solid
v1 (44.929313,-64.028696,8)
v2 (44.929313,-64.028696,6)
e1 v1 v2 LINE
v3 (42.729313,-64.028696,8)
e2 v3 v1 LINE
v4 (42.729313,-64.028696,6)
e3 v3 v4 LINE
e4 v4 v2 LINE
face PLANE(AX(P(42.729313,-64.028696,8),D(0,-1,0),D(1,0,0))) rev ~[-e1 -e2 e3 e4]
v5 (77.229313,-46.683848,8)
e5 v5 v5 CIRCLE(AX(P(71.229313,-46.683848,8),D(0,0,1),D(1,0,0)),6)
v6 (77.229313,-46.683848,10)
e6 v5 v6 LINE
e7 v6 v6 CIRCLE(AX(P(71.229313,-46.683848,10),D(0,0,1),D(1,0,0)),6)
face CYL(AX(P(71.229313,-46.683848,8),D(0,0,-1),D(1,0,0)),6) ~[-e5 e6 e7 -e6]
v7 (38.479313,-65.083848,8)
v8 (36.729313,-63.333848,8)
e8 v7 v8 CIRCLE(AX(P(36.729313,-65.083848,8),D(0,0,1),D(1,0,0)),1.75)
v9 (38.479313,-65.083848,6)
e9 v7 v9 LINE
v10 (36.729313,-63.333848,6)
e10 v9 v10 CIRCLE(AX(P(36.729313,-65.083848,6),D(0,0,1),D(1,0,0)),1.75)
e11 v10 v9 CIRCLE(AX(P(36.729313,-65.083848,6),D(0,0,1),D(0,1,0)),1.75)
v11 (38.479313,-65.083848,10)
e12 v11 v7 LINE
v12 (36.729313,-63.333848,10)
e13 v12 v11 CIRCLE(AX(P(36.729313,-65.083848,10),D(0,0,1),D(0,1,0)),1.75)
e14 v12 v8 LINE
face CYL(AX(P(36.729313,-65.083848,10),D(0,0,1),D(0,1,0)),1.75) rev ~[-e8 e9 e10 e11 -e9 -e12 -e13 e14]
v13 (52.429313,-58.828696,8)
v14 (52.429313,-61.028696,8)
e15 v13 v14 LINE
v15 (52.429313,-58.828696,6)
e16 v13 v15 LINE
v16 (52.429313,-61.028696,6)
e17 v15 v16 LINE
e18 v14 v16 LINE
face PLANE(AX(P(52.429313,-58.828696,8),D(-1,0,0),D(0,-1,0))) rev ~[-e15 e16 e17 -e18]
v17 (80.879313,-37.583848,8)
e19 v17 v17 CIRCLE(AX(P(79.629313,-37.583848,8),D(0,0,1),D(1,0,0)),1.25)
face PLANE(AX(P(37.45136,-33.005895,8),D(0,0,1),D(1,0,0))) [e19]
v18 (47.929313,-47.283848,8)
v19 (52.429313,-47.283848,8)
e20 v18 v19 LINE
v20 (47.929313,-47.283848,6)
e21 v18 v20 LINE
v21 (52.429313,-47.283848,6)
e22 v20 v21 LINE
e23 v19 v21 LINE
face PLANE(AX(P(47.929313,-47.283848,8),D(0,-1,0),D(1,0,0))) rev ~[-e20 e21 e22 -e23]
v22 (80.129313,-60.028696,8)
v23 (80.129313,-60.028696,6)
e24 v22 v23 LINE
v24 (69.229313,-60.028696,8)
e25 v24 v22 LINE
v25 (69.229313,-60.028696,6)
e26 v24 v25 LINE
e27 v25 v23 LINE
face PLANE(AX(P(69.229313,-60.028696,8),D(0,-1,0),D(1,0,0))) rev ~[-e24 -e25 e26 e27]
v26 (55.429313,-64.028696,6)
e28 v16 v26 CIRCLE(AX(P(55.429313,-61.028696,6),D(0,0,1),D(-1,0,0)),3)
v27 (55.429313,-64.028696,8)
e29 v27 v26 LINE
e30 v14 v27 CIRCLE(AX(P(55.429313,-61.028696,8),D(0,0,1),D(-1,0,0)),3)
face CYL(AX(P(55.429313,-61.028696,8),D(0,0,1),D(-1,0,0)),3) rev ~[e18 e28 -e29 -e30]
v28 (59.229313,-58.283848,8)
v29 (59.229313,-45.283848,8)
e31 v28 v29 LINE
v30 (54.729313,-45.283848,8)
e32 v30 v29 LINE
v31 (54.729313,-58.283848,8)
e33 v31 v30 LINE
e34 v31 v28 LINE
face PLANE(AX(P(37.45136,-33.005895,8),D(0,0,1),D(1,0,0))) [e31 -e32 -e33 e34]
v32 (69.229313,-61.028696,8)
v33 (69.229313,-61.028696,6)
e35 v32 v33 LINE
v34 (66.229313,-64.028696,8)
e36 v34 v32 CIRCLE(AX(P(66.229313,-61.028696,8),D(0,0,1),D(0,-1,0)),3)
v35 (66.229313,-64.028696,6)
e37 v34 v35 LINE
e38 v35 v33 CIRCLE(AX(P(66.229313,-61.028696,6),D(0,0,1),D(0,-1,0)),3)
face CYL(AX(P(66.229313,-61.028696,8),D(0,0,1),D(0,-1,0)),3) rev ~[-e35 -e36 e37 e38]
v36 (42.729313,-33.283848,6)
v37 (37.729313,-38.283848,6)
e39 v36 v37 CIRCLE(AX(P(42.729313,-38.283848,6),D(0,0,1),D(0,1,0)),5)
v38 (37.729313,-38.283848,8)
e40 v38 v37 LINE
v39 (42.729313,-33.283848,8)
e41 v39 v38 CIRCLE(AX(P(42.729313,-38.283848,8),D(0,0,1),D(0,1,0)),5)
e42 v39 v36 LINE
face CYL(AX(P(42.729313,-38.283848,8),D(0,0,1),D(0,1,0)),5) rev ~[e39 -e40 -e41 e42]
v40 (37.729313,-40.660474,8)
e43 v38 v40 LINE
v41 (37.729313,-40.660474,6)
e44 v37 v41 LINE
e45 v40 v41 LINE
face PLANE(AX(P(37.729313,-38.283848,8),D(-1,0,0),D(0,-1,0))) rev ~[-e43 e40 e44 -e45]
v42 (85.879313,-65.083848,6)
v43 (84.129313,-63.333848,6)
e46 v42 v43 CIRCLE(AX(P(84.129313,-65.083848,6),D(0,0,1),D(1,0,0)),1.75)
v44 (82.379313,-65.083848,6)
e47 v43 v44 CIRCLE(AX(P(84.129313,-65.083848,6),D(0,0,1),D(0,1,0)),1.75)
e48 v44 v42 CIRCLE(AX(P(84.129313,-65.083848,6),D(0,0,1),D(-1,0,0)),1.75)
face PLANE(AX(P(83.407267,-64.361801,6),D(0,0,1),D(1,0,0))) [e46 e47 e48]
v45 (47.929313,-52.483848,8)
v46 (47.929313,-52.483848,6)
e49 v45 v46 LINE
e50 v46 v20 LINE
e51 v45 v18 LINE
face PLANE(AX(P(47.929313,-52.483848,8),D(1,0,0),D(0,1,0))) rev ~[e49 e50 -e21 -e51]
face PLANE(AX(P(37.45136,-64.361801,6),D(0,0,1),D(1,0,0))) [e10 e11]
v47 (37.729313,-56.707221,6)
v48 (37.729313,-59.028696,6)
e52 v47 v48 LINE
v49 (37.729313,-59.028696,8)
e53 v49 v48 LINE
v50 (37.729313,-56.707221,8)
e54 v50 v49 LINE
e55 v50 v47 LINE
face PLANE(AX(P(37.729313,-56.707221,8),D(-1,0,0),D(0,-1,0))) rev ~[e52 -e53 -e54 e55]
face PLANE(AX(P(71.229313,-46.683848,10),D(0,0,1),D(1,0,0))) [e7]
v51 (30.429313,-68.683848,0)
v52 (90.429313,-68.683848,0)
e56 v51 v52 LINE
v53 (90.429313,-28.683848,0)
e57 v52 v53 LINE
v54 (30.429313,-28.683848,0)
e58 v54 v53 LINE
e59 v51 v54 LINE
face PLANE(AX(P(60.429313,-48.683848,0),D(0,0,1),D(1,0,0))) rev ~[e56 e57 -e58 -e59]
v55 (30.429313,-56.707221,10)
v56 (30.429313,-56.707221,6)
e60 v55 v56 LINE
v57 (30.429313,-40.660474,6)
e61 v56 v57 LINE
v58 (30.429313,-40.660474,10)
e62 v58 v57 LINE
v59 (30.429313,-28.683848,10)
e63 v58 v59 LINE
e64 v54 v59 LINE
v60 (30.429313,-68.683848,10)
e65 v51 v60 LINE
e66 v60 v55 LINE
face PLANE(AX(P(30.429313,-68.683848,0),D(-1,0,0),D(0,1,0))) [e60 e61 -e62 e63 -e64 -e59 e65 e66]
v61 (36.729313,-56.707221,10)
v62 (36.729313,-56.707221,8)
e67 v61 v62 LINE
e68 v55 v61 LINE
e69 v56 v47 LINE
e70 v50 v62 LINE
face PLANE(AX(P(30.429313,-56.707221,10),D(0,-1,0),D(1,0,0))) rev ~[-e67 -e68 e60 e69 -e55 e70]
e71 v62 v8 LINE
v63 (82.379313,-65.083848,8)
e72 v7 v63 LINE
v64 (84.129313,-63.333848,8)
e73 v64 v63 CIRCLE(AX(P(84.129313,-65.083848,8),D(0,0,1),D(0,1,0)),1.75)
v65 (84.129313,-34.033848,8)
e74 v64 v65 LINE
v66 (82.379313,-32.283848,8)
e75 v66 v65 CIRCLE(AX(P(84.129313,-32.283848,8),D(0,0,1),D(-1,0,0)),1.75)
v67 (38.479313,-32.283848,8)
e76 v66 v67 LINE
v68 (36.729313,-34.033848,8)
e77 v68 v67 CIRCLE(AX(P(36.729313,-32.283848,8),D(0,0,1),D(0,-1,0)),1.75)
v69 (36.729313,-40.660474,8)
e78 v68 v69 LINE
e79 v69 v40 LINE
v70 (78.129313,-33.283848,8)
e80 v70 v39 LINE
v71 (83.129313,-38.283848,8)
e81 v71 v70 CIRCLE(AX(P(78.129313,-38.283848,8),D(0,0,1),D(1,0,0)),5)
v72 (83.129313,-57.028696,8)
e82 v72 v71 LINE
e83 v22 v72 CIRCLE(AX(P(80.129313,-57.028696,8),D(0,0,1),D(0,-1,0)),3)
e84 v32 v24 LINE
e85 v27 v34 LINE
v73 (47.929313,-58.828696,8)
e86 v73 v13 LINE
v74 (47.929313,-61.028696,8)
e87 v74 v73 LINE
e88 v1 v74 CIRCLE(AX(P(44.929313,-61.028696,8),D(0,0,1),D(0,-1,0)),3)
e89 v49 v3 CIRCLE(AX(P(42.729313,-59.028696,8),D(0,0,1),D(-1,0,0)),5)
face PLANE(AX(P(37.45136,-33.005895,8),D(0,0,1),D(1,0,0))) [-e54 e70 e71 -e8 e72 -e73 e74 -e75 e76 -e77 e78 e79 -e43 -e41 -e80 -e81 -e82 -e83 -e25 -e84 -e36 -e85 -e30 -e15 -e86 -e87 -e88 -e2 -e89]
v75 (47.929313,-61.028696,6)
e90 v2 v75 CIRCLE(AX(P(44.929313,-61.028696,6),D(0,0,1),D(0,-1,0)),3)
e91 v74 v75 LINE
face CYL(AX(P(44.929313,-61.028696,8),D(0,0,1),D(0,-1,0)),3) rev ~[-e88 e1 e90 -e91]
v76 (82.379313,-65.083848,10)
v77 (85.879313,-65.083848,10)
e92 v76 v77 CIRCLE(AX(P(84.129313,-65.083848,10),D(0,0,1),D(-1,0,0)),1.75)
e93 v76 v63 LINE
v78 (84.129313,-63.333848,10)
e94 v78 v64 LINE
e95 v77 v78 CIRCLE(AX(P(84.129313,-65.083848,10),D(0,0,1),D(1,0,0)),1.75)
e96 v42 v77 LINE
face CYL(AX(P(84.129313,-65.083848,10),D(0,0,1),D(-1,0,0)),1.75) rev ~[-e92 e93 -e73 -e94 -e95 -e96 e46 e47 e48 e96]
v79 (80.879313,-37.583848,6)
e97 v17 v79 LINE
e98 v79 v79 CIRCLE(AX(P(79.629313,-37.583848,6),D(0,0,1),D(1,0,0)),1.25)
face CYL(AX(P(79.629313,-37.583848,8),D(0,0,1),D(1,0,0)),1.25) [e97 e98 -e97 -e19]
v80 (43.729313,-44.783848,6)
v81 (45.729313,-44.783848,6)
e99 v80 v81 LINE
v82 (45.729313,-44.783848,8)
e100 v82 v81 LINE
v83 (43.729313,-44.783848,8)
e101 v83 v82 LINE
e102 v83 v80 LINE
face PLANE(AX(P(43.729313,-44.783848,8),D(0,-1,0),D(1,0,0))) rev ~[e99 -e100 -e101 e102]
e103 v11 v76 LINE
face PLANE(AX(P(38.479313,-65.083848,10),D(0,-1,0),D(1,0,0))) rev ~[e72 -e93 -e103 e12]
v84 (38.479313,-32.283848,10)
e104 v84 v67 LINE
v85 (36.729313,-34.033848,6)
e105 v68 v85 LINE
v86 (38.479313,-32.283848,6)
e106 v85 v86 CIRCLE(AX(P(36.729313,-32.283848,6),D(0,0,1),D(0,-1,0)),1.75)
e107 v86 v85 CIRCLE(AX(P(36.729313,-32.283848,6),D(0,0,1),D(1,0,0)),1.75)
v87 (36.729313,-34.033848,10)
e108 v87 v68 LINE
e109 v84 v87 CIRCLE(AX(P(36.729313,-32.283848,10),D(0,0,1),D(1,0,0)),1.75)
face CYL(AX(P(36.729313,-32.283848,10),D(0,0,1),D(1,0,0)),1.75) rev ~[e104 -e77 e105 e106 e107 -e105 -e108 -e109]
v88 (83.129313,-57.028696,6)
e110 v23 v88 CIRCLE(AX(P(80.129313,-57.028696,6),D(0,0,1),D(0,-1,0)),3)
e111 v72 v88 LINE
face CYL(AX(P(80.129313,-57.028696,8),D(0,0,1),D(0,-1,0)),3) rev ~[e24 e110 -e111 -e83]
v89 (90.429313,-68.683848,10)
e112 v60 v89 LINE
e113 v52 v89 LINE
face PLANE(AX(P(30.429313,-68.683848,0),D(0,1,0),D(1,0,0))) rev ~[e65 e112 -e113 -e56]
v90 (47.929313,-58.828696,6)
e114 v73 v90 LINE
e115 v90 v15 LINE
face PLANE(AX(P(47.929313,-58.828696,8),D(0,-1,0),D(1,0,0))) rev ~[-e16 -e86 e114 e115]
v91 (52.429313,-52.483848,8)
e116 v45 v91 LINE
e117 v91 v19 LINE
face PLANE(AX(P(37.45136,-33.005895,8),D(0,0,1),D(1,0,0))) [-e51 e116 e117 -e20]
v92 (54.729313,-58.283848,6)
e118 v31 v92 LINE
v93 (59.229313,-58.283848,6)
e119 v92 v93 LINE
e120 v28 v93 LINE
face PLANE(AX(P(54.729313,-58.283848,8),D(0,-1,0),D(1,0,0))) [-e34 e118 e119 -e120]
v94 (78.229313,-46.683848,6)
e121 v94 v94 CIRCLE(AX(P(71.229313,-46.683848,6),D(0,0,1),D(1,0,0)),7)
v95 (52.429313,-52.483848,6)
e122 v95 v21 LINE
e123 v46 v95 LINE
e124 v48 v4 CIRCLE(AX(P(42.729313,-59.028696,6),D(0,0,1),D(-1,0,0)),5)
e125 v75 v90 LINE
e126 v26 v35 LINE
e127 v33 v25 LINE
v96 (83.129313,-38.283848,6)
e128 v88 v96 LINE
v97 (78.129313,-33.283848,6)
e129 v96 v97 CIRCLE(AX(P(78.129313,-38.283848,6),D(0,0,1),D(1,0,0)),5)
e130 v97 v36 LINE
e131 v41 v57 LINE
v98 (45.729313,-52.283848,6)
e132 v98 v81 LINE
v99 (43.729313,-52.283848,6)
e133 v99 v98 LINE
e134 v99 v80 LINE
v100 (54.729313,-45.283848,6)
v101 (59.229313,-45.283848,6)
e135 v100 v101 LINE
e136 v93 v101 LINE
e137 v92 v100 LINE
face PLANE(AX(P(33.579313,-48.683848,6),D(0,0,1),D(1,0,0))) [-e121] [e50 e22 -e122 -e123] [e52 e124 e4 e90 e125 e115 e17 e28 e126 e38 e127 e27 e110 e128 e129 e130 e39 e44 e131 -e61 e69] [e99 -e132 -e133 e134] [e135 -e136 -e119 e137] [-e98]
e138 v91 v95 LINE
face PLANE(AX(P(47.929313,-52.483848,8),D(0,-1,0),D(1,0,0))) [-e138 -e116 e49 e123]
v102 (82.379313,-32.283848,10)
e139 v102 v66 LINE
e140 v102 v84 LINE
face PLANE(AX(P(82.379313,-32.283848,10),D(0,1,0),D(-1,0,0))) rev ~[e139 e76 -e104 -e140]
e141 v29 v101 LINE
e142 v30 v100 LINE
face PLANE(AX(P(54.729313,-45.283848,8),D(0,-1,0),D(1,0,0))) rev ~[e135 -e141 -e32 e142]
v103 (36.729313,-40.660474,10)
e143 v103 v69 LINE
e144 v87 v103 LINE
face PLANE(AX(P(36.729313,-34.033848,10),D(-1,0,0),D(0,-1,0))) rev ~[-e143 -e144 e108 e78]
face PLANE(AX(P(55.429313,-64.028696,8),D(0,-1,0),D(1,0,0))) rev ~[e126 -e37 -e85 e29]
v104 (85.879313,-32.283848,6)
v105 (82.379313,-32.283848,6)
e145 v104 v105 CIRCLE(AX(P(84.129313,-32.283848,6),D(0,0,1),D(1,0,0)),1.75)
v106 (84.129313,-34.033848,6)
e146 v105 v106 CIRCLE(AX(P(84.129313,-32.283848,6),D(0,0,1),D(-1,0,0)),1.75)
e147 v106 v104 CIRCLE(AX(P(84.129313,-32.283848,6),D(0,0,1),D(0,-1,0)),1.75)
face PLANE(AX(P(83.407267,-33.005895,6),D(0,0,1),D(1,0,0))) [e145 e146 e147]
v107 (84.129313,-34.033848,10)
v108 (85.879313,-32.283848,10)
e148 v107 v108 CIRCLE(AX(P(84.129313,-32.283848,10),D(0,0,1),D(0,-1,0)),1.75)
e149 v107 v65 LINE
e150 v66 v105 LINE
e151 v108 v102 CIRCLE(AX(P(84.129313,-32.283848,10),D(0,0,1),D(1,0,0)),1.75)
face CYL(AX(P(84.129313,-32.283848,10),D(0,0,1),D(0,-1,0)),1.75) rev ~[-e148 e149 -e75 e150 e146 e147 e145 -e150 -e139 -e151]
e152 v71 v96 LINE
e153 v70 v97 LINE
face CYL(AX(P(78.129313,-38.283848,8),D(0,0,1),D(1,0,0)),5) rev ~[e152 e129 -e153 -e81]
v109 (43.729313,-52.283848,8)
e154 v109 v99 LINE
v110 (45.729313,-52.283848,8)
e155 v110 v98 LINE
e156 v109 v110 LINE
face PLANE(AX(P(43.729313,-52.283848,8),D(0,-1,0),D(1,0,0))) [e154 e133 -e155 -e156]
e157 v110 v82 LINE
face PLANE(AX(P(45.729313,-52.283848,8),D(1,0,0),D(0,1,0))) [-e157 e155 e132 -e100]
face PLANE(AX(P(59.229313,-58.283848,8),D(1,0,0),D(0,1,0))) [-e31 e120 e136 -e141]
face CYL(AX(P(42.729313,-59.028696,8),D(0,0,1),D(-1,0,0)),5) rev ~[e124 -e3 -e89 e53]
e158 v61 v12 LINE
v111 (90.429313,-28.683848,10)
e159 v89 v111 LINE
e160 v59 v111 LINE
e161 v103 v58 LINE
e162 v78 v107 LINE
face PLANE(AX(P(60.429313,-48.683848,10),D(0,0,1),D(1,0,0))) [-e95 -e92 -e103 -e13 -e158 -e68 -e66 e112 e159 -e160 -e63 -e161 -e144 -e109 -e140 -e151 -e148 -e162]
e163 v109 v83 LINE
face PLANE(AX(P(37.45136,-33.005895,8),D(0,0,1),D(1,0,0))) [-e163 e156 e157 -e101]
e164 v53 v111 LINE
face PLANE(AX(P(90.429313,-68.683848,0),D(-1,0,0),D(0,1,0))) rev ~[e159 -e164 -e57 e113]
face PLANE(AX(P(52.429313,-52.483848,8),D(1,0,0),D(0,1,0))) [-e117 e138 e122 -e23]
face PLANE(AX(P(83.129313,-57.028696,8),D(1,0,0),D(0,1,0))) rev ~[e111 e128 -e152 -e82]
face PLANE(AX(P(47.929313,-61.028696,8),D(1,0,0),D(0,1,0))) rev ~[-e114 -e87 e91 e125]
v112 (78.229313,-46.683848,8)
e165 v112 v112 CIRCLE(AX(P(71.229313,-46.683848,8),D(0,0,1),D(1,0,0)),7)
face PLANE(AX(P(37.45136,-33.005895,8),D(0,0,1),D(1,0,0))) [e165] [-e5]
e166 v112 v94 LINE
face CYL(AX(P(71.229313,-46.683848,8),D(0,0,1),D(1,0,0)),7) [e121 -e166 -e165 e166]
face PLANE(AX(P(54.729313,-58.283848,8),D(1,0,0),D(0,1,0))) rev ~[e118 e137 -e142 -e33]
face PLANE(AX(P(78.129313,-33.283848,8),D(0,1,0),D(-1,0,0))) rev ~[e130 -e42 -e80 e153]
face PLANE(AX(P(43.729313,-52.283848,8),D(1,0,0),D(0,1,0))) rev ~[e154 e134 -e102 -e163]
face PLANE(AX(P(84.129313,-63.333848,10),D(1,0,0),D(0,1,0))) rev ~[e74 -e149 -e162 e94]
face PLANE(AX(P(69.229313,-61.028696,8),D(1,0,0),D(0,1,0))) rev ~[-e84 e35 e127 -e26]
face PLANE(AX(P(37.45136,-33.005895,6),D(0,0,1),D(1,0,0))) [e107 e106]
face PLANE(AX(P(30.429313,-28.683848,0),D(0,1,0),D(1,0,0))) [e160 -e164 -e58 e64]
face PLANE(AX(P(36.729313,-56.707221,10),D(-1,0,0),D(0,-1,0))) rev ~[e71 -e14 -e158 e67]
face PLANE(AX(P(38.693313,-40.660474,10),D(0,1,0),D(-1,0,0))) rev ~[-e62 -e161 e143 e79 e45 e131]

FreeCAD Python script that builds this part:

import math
import FreeCAD as App
import Part
import Sketcher

V = App.Vector

doc = App.newDocument("Part")
params = doc.addObject("Spreadsheet::Sheet", "Params")
for row, (alias, value) in enumerate([
    ("sketch1_width", "60 mm"),
    ("sketch1_height", "40 mm"),
    ("pad1_length", "10 mm"),
    ("sketch2_radius", "1.75 mm"),
    ("sketch2_width", "43.9 mm"),
    ("sketch2_height", "29.3 mm"),
    ("pocket1_length", "2 mm"),
    ("sketch3_radius", "1.75 mm"),
    ("pocket2_length", "4 mm"),
    ("sketch4_diameter", "12 mm"),
    ("pad2_length", "2 mm"),
    ("pocket3_length", "4 mm"),
    ("sketch6_diameter", "14 mm"),
    ("sketch6_radius", "5 mm"),
    ("sketch6_radius2", "3 mm"),
    ("sketch6_diameter2", "2.5 mm"),
    ("sketch6_width", "2 mm"),
    ("pocket4_length", "2 mm"),
], start=1):
    params.set(f"A{row}", alias)
    params.set(f"B{row}", "=" + value)
    params.setAlias(f"B{row}", alias)

body = doc.addObject("PartDesign::Body", "Body")

sketch1 = body.newObject("Sketcher::SketchObject", "Sketch")
sketch1.AttachmentSupport = (doc.getObject("XY_Plane"), [""])
sketch1.MapMode = "FlatFace"
sketch1.addGeometry(Part.LineSegment(V(30.429313, -28.683848, 0), V(30.429313, -68.683848, 0)), False)
sketch1.addGeometry(Part.LineSegment(V(30.429313, -68.683848, 0), V(90.429313, -68.683848, 0)), False)
sketch1.addGeometry(Part.LineSegment(V(90.429313, -68.683848, 0), V(90.429313, -28.683848, 0)), False)
sketch1.addGeometry(Part.LineSegment(V(90.429313, -28.683848, 0), V(30.429313, -28.683848, 0)), False)
sketch1.addConstraint(Sketcher.Constraint("Coincident", 0, 2, 1, 1))
sketch1.addConstraint(Sketcher.Constraint("Coincident", 1, 2, 2, 1))
sketch1.addConstraint(Sketcher.Constraint("Coincident", 2, 2, 3, 1))
sketch1.addConstraint(Sketcher.Constraint("Coincident", 3, 2, 0, 1))
sketch1.addConstraint(Sketcher.Constraint("Vertical", 0))
sketch1.addConstraint(Sketcher.Constraint("Horizontal", 1))
sketch1.addConstraint(Sketcher.Constraint("Vertical", 2))
sketch1.addConstraint(Sketcher.Constraint("Horizontal", 3))
sketch1.addConstraint(Sketcher.Constraint("DistanceX", 1, 1, 1, 2, 60.0))
sketch1.addConstraint(Sketcher.Constraint("DistanceY", 0, 2, 0, 1, 40.0))
sketch1.addConstraint(Sketcher.Constraint("DistanceX", -1, 1, 0, 2, 30.429313))
sketch1.addConstraint(Sketcher.Constraint("DistanceY", 0, 2, -1, 1, 68.683848))
sketch1.setExpression("Constraints[8]", "Params.sketch1_width")
sketch1.setExpression("Constraints[9]", "Params.sketch1_height")
pad1 = body.newObject("PartDesign::Pad", "Pad")
pad1.Profile = sketch1
pad1.setExpression("Length", "Params.pad1_length")

sketch2 = body.newObject("Sketcher::SketchObject", "Sketch001")
sketch2.AttachmentSupport = (doc.getObject("XY_Plane"), [""])
sketch2.MapMode = "FlatFace"
sketch2.AttachmentOffset = App.Placement(V(0, 0, 10), App.Rotation())
sketch2.addGeometry(Part.ArcOfCircle(Part.Circle(V(36.729313, -32.283848, 0), V(0, 0, 1), 1.75), math.radians(0), math.radians(270)), False)
sketch2.addGeometry(Part.LineSegment(V(36.729313, -34.033848, 0), V(36.729313, -40.660474, 0)), False)
sketch2.addGeometry(Part.LineSegment(V(36.729313, -40.660474, 0), V(38.693313, -40.660474, 0)), False)
sketch2.addGeometry(Part.LineSegment(V(38.693313, -40.660474, 0), V(38.693313, -56.707221, 0)), False)
sketch2.addGeometry(Part.LineSegment(V(38.693313, -56.707221, 0), V(36.729313, -56.707221, 0)), False)
sketch2.addGeometry(Part.LineSegment(V(36.729313, -56.707221, 0), V(36.729313, -63.333848, 0)), False)
sketch2.addGeometry(Part.ArcOfCircle(Part.Circle(V(36.729313, -65.083848, 0), V(0, 0, 1), 1.75), math.radians(90), math.radians(360)), False)
sketch2.addGeometry(Part.LineSegment(V(38.479313, -65.083848, 0), V(82.379313, -65.083848, 0)), False)
sketch2.addGeometry(Part.ArcOfCircle(Part.Circle(V(84.129313, -65.083848, 0), V(0, 0, 1), 1.75), math.radians(180), math.radians(360)), False)
sketch2.addGeometry(Part.ArcOfCircle(Part.Circle(V(84.129313, -65.083848, 0), V(0, 0, 1), 1.75), math.radians(0), math.radians(90)), False)
sketch2.addGeometry(Part.LineSegment(V(84.129313, -63.333848, 0), V(84.129313, -34.033848, 0)), False)
sketch2.addGeometry(Part.ArcOfCircle(Part.Circle(V(84.129313, -32.283848, 0), V(0, 0, 1), 1.75), math.radians(-90), math.radians(0)), False)
sketch2.addGeometry(Part.ArcOfCircle(Part.Circle(V(84.129313, -32.283848, 0), V(0, 0, 1), 1.75), math.radians(0), math.radians(180)), False)
sketch2.addGeometry(Part.LineSegment(V(82.379313, -32.283848, 0), V(38.479313, -32.283848, 0)), False)
sketch2.addConstraint(Sketcher.Constraint("Coincident", 0, 2, 1, 1))
sketch2.addConstraint(Sketcher.Constraint("Coincident", 1, 2, 2, 1))
sketch2.addConstraint(Sketcher.Constraint("Coincident", 2, 2, 3, 1))
sketch2.addConstraint(Sketcher.Constraint("Coincident", 3, 2, 4, 1))
sketch2.addConstraint(Sketcher.Constraint("Coincident", 4, 2, 5, 1))
sketch2.addConstraint(Sketcher.Constraint("Coincident", 5, 2, 6, 1))
sketch2.addConstraint(Sketcher.Constraint("Coincident", 6, 2, 7, 1))
sketch2.addConstraint(Sketcher.Constraint("Coincident", 7, 2, 8, 1))
sketch2.addConstraint(Sketcher.Constraint("Tangent", 8, 2, 9, 1))
sketch2.addConstraint(Sketcher.Constraint("Coincident", 9, 2, 10, 1))
sketch2.addConstraint(Sketcher.Constraint("Coincident", 10, 2, 11, 1))
sketch2.addConstraint(Sketcher.Constraint("Tangent", 11, 2, 12, 1))
sketch2.addConstraint(Sketcher.Constraint("Coincident", 12, 2, 13, 1))
sketch2.addConstraint(Sketcher.Constraint("Coincident", 13, 2, 0, 1))
sketch2.addConstraint(Sketcher.Constraint("Vertical", 1))
sketch2.addConstraint(Sketcher.Constraint("Horizontal", 2))
sketch2.addConstraint(Sketcher.Constraint("Vertical", 3))
sketch2.addConstraint(Sketcher.Constraint("Horizontal", 4))
sketch2.addConstraint(Sketcher.Constraint("Vertical", 5))
sketch2.addConstraint(Sketcher.Constraint("Horizontal", 7))
sketch2.addConstraint(Sketcher.Constraint("Vertical", 10))
sketch2.addConstraint(Sketcher.Constraint("Horizontal", 13))
sketch2.addConstraint(Sketcher.Constraint("Equal", 0, 6))
sketch2.addConstraint(Sketcher.Constraint("Equal", 6, 8))
sketch2.addConstraint(Sketcher.Constraint("Equal", 8, 9))
sketch2.addConstraint(Sketcher.Constraint("Equal", 9, 11))
sketch2.addConstraint(Sketcher.Constraint("Equal", 11, 12))
sketch2.addConstraint(Sketcher.Constraint("Horizontal", 6, 3, 8, 3))
sketch2.addConstraint(Sketcher.Constraint("Horizontal", 0, 3, 11, 3))
sketch2.addConstraint(Sketcher.Constraint("Horizontal", 9, 3, 6, 2))
sketch2.addConstraint(Sketcher.Constraint("Horizontal", 7, 2, 8, 2))
sketch2.addConstraint(Sketcher.Constraint("Horizontal", 12, 3, 11, 2))
sketch2.addConstraint(Sketcher.Constraint("Horizontal", 11, 2, 12, 2))
sketch2.addConstraint(Sketcher.Constraint("Vertical", 0, 3, 6, 3))
sketch2.addConstraint(Sketcher.Constraint("Vertical", 9, 3, 11, 3))
sketch2.addConstraint(Sketcher.Constraint("Vertical", 6, 3, 0, 2))
sketch2.addConstraint(Sketcher.Constraint("Vertical", 1, 2, 4, 2))
sketch2.addConstraint(Sketcher.Constraint("Vertical", 12, 3, 9, 2))
sketch2.addConstraint(Sketcher.Constraint("Equal", 1, 5))
sketch2.addConstraint(Sketcher.Constraint("Radius", 0, 1.75))
sketch2.addConstraint(Sketcher.Constraint("DistanceX", 7, 1, 7, 2, 43.9))
sketch2.addConstraint(Sketcher.Constraint("DistanceY", 10, 1, 10, 2, 29.3))
sketch2.addConstraint(Sketcher.Constraint("DistanceX", 2, 1, 2, 2, 1.963999))
sketch2.addConstraint(Sketcher.Constraint("DistanceY", 1, 2, 1, 1, 6.626627))
sketch2.addConstraint(Sketcher.Constraint("DistanceY", 3, 2, -1, 1, 56.707221))
sketch2.addConstraint(Sketcher.Constraint("DistanceX", -1, 1, 0, 3, 36.729313))
sketch2.setExpression("Constraints[39]", "Params.sketch2_radius")
sketch2.setExpression("Constraints[40]", "Params.sketch2_width")
sketch2.setExpression("Constraints[41]", "Params.sketch2_height")
pocket1 = body.newObject("PartDesign::Pocket", "Pocket")
pocket1.Profile = sketch2
pocket1.setExpression("Length", "Params.pocket1_length")

sketch3 = body.newObject("Sketcher::SketchObject", "Sketch002")
sketch3.AttachmentSupport = (doc.getObject("XY_Plane"), [""])
sketch3.MapMode = "FlatFace"
sketch3.AttachmentOffset = App.Placement(V(0, 0, 10), App.Rotation())
sketch3.addGeometry(Part.ArcOfCircle(Part.Circle(V(36.729313, -32.283848, 0), V(0, 0, 1), 1.75), math.radians(-90), math.radians(0)), False)
sketch3.addGeometry(Part.ArcOfCircle(Part.Circle(V(36.729313, -32.283848, 0), V(0, 0, 1), 1.75), math.radians(0), math.radians(270)), False)
sketch3.addGeometry(Part.ArcOfCircle(Part.Circle(V(36.729313, -65.083848, 0), V(0, 0, 1), 1.75), math.radians(0), math.radians(90)), False)
sketch3.addGeometry(Part.ArcOfCircle(Part.Circle(V(36.729313, -65.083848, 0), V(0, 0, 1), 1.75), math.radians(90), math.radians(360)), False)
sketch3.addGeometry(Part.ArcOfCircle(Part.Circle(V(84.129313, -32.283848, 0), V(0, 0, 1), 1.75), math.radians(180), math.radians(270)), False)
sketch3.addGeometry(Part.ArcOfCircle(Part.Circle(V(84.129313, -32.283848, 0), V(0, 0, 1), 1.75), math.radians(-90), math.radians(0)), False)
sketch3.addGeometry(Part.ArcOfCircle(Part.Circle(V(84.129313, -32.283848, 0), V(0, 0, 1), 1.75), math.radians(0), math.radians(180)), False)
sketch3.addGeometry(Part.ArcOfCircle(Part.Circle(V(84.129313, -65.083848, 0), V(0, 0, 1), 1.75), math.radians(90), math.radians(180)), False)
sketch3.addGeometry(Part.ArcOfCircle(Part.Circle(V(84.129313, -65.083848, 0), V(0, 0, 1), 1.75), math.radians(180), math.radians(360)), False)
sketch3.addGeometry(Part.ArcOfCircle(Part.Circle(V(84.129313, -65.083848, 0), V(0, 0, 1), 1.75), math.radians(0), math.radians(90)), False)
sketch3.addConstraint(Sketcher.Constraint("Tangent", 0, 1, 1, 2))
sketch3.addConstraint(Sketcher.Constraint("Coincident", 1, 1, 0, 2))
sketch3.addConstraint(Sketcher.Constraint("Tangent", 2, 1, 3, 2))
sketch3.addConstraint(Sketcher.Constraint("Coincident", 3, 1, 2, 2))
sketch3.addConstraint(Sketcher.Constraint("Tangent", 4, 2, 5, 1))
sketch3.addConstraint(Sketcher.Constraint("Tangent", 5, 2, 6, 1))
sketch3.addConstraint(Sketcher.Constraint("Tangent", 6, 2, 4, 1))
sketch3.addConstraint(Sketcher.Constraint("Tangent", 7, 2, 8, 1))
sketch3.addConstraint(Sketcher.Constraint("Tangent", 8, 2, 9, 1))
sketch3.addConstraint(Sketcher.Constraint("Tangent", 9, 2, 7, 1))
sketch3.addConstraint(Sketcher.Constraint("Equal", 1, 2))
sketch3.addConstraint(Sketcher.Constraint("Equal", 3, 4))
sketch3.addConstraint(Sketcher.Constraint("Equal", 6, 7))
sketch3.addConstraint(Sketcher.Constraint("Horizontal", 1, 3, 4, 3))
sketch3.addConstraint(Sketcher.Constraint("Horizontal", 3, 3, 7, 3))
sketch3.addConstraint(Sketcher.Constraint("Horizontal", 6, 3, 1, 1))
sketch3.addConstraint(Sketcher.Constraint("Horizontal", 9, 3, 2, 1))
sketch3.addConstraint(Sketcher.Constraint("Horizontal", 1, 1, 5, 2))
sketch3.addConstraint(Sketcher.Constraint("Horizontal", 5, 2, 6, 2))
sketch3.addConstraint(Sketcher.Constraint("Horizontal", 2, 1, 7, 2))
sketch3.addConstraint(Sketcher.Constraint("Horizontal", 7, 2, 8, 2))
sketch3.addConstraint(Sketcher.Constraint("Vertical", 1, 3, 2, 3))
sketch3.addConstraint(Sketcher.Constraint("Vertical", 6, 3, 7, 3))
sketch3.addConstraint(Sketcher.Constraint("Vertical", 3, 3, 0, 1))
sketch3.addConstraint(Sketcher.Constraint("Vertical", 0, 1, 3, 1))
sketch3.addConstraint(Sketcher.Constraint("Vertical", 9, 3, 4, 2))
sketch3.addConstraint(Sketcher.Constraint("Vertical", 4, 2, 9, 2))
sketch3.addConstraint(Sketcher.Constraint("Radius", 0, 1.75))
sketch3.addConstraint(Sketcher.Constraint("DistanceY", 2, 3, 0, 3, 32.8))
sketch3.addConstraint(Sketcher.Constraint("DistanceX", 0, 3, 4, 3, 47.4))
sketch3.addConstraint(Sketcher.Constraint("DistanceX", -1, 1, 0, 3, 36.729313))
sketch3.addConstraint(Sketcher.Constraint("DistanceY", 0, 3, -1, 1, 32.283848))
sketch3.setExpression("Constraints[27]", "Params.sketch3_radius")
pocket2 = body.newObject("PartDesign::Pocket", "Pocket001")
pocket2.Profile = sketch3
pocket2.setExpression("Length", "Params.pocket2_length")

sketch4 = body.newObject("Sketcher::SketchObject", "Sketch003")
sketch4.AttachmentSupport = (doc.getObject("XY_Plane"), [""])
sketch4.MapMode = "FlatFace"
sketch4.AttachmentOffset = App.Placement(V(0, 0, 8), App.Rotation())
sketch4.addGeometry(Part.Circle(V(71.229313, -46.683848, 0), V(0, 0, 1), 6), False)
sketch4.addConstraint(Sketcher.Constraint("Diameter", 0, 12.0))
sketch4.addConstraint(Sketcher.Constraint("DistanceX", -1, 1, 0, 3, 71.229313))
sketch4.addConstraint(Sketcher.Constraint("DistanceY", 0, 3, -1, 1, 46.683848))
sketch4.setExpression("Constraints[0]", "Params.sketch4_diameter")
pad2 = body.newObject("PartDesign::Pad", "Pad001")
pad2.Profile = sketch4
pad2.setExpression("Length", "Params.pad2_length")

sketch5 = body.newObject("Sketcher::SketchObject", "Sketch004")
sketch5.AttachmentSupport = (doc.getObject("XY_Plane"), [""])
sketch5.MapMode = "FlatFace"
sketch5.AttachmentOffset = App.Placement(V(0, 0, 10), App.Rotation())
sketch5.addGeometry(Part.LineSegment(V(30.429313, -40.660474, 0), V(30.429313, -56.707221, 0)), False)
sketch5.addGeometry(Part.LineSegment(V(30.429313, -56.707221, 0), V(38.693313, -56.707221, 0)), False)
sketch5.addGeometry(Part.LineSegment(V(38.693313, -56.707221, 0), V(38.693313, -40.660474, 0)), False)
sketch5.addGeometry(Part.LineSegment(V(38.693313, -40.660474, 0), V(30.429313, -40.660474, 0)), False)
sketch5.addConstraint(Sketcher.Constraint("Coincident", 0, 2, 1, 1))
sketch5.addConstraint(Sketcher.Constraint("Coincident", 1, 2, 2, 1))
sketch5.addConstraint(Sketcher.Constraint("Coincident", 2, 2, 3, 1))
sketch5.addConstraint(Sketcher.Constraint("Coincident", 3, 2, 0, 1))
sketch5.addConstraint(Sketcher.Constraint("Vertical", 0))
sketch5.addConstraint(Sketcher.Constraint("Horizontal", 1))
sketch5.addConstraint(Sketcher.Constraint("Vertical", 2))
sketch5.addConstraint(Sketcher.Constraint("Horizontal", 3))
sketch5.addConstraint(Sketcher.Constraint("DistanceX", 1, 1, 1, 2, 8.263999))
sketch5.addConstraint(Sketcher.Constraint("DistanceY", 0, 2, 0, 1, 16.046747))
sketch5.addConstraint(Sketcher.Constraint("DistanceY", 0, 2, -1, 1, 56.707221))
sketch5.addConstraint(Sketcher.Constraint("DistanceX", -1, 1, 0, 2, 30.429313))
pocket3 = body.newObject("PartDesign::Pocket", "Pocket002")
pocket3.Profile = sketch5
pocket3.setExpression("Length", "Params.pocket3_length")

sketch6 = body.newObject("Sketcher::SketchObject", "Sketch005")
sketch6.AttachmentSupport = (doc.getObject("XY_Plane"), [""])
sketch6.MapMode = "FlatFace"
sketch6.AttachmentOffset = App.Placement(V(0, 0, 8), App.Rotation())
sketch6.addGeometry(Part.LineSegment(V(78.129313, -33.283848, 0), V(42.729313, -33.283848, 0)), False)
sketch6.addGeometry(Part.ArcOfCircle(Part.Circle(V(42.729313, -38.283848, 0), V(0, 0, 1), 5), math.radians(90), math.radians(180)), False)
sketch6.addGeometry(Part.LineSegment(V(37.729313, -38.283848, 0), V(37.729313, -40.660474, 0)), False)
sketch6.addGeometry(Part.LineSegment(V(37.729313, -40.660474, 0), V(38.693313, -40.660474, 0)), False)
sketch6.addGeometry(Part.LineSegment(V(38.693313, -40.660474, 0), V(38.693313, -56.707221, 0)), False)
sketch6.addGeometry(Part.LineSegment(V(38.693313, -56.707221, 0), V(37.729313, -56.707221, 0)), False)
sketch6.addGeometry(Part.LineSegment(V(37.729313, -56.707221, 0), V(37.729313, -59.028696, 0)), False)
sketch6.addGeometry(Part.ArcOfCircle(Part.Circle(V(42.729313, -59.028696, 0), V(0, 0, 1), 5), math.radians(180), math.radians(270)), False)
sketch6.addGeometry(Part.LineSegment(V(42.729313, -64.028696, 0), V(44.929313, -64.028696, 0)), False)
sketch6.addGeometry(Part.ArcOfCircle(Part.Circle(V(44.929313, -61.028696, 0), V(0, 0, 1), 3), math.radians(-90), math.radians(0)), False)
sketch6.addGeometry(Part.LineSegment(V(47.929313, -61.028696, 0), V(47.929313, -58.828696, 0)), False)
sketch6.addGeometry(Part.LineSegment(V(47.929313, -58.828696, 0), V(52.429313, -58.828696, 0)), False)
sketch6.addGeometry(Part.LineSegment(V(52.429313, -58.828696, 0), V(52.429313, -61.028696, 0)), False)
sketch6.addGeometry(Part.ArcOfCircle(Part.Circle(V(55.429313, -61.028696, 0), V(0, 0, 1), 3), math.radians(180), math.radians(270)), False)
sketch6.addGeometry(Part.LineSegment(V(55.429313, -64.028696, 0), V(66.229313, -64.028696, 0)), False)
sketch6.addGeometry(Part.ArcOfCircle(Part.Circle(V(66.229313, -61.028696, 0), V(0, 0, 1), 3), math.radians(-90), math.radians(0)), False)
sketch6.addGeometry(Part.LineSegment(V(69.229313, -61.028696, 0), V(69.229313, -60.028696, 0)), False)
sketch6.addGeometry(Part.LineSegment(V(69.229313, -60.028696, 0), V(80.129313, -60.028696, 0)), False)
sketch6.addGeometry(Part.ArcOfCircle(Part.Circle(V(80.129313, -57.028696, 0), V(0, 0, 1), 3), math.radians(-90), math.radians(0)), False)
sketch6.addGeometry(Part.LineSegment(V(83.129313, -57.028696, 0), V(83.129313, -38.283848, 0)), False)
sketch6.addGeometry(Part.ArcOfCircle(Part.Circle(V(78.129313, -38.283848, 0), V(0, 0, 1), 5), math.radians(0), math.radians(90)), False)
sketch6.addGeometry(Part.LineSegment(V(45.729313, -52.283848, 0), V(43.729313, -52.283848, 0)), False)
sketch6.addGeometry(Part.LineSegment(V(43.729313, -52.283848, 0), V(43.729313, -44.783848, 0)), False)
sketch6.addGeometry(Part.LineSegment(V(43.729313, -44.783848, 0), V(45.729313, -44.783848, 0)), False)
sketch6.addGeometry(Part.LineSegment(V(45.729313, -44.783848, 0), V(45.729313, -52.283848, 0)), False)
sketch6.addGeometry(Part.LineSegment(V(52.429313, -52.483848, 0), V(47.929313, -52.483848, 0)), False)
sketch6.addGeometry(Part.LineSegment(V(47.929313, -52.483848, 0), V(47.929313, -47.283848, 0)), False)
sketch6.addGeometry(Part.LineSegment(V(47.929313, -47.283848, 0), V(52.429313, -47.283848, 0)), False)
sketch6.addGeometry(Part.LineSegment(V(52.429313, -47.283848, 0), V(52.429313, -52.483848, 0)), False)
sketch6.addGeometry(Part.LineSegment(V(59.229313, -58.283848, 0), V(54.729313, -58.283848, 0)), False)
sketch6.addGeometry(Part.LineSegment(V(54.729313, -58.283848, 0), V(54.729313, -45.283848, 0)), False)
sketch6.addGeometry(Part.LineSegment(V(54.729313, -45.283848, 0), V(59.229313, -45.283848, 0)), False)
sketch6.addGeometry(Part.LineSegment(V(59.229313, -45.283848, 0), V(59.229313, -58.283848, 0)), False)
sketch6.addGeometry(Part.Circle(V(71.229313, -46.683848, 0), V(0, 0, 1), 7), False)
sketch6.addGeometry(Part.Circle(V(79.629313, -37.583848, 0), V(0, 0, 1), 1.25), False)
sketch6.addConstraint(Sketcher.Constraint("Tangent", 0, 2, 1, 1))
sketch6.addConstraint(Sketcher.Constraint("Tangent", 1, 2, 2, 1))
sketch6.addConstraint(Sketcher.Constraint("Coincident", 2, 2, 3, 1))
sketch6.addConstraint(Sketcher.Constraint("Coincident", 3, 2, 4, 1))
sketch6.addConstraint(Sketcher.Constraint("Coincident", 4, 2, 5, 1))
sketch6.addConstraint(Sketcher.Constraint("Coincident", 5, 2, 6, 1))
sketch6.addConstraint(Sketcher.Constraint("Tangent", 6, 2, 7, 1))
sketch6.addConstraint(Sketcher.Constraint("Tangent", 7, 2, 8, 1))
sketch6.addConstraint(Sketcher.Constraint("Tangent", 8, 2, 9, 1))
sketch6.addConstraint(Sketcher.Constraint("Tangent", 9, 2, 10, 1))
sketch6.addConstraint(Sketcher.Constraint("Coincident", 10, 2, 11, 1))
sketch6.addConstraint(Sketcher.Constraint("Coincident", 11, 2, 12, 1))
sketch6.addConstraint(Sketcher.Constraint("Tangent", 12, 2, 13, 1))
sketch6.addConstraint(Sketcher.Constraint("Tangent", 13, 2, 14, 1))
sketch6.addConstraint(Sketcher.Constraint("Tangent", 14, 2, 15, 1))
sketch6.addConstraint(Sketcher.Constraint("Tangent", 15, 2, 16, 1))
sketch6.addConstraint(Sketcher.Constraint("Coincident", 16, 2, 17, 1))
sketch6.addConstraint(Sketcher.Constraint("Tangent", 17, 2, 18, 1))
sketch6.addConstraint(Sketcher.Constraint("Tangent", 18, 2, 19, 1))
sketch6.addConstraint(Sketcher.Constraint("Tangent", 19, 2, 20, 1))
sketch6.addConstraint(Sketcher.Constraint("Tangent", 20, 2, 0, 1))
sketch6.addConstraint(Sketcher.Constraint("Coincident", 21, 2, 22, 1))
sketch6.addConstraint(Sketcher.Constraint("Coincident", 22, 2, 23, 1))
sketch6.addConstraint(Sketcher.Constraint("Coincident", 23, 2, 24, 1))
sketch6.addConstraint(Sketcher.Constraint("Coincident", 24, 2, 21, 1))
sketch6.addConstraint(Sketcher.Constraint("Coincident", 25, 2, 26, 1))
sketch6.addConstraint(Sketcher.Constraint("Coincident", 26, 2, 27, 1))
sketch6.addConstraint(Sketcher.Constraint("Coincident", 27, 2, 28, 1))
sketch6.addConstraint(Sketcher.Constraint("Coincident", 28, 2, 25, 1))
sketch6.addConstraint(Sketcher.Constraint("Coincident", 29, 2, 30, 1))
sketch6.addConstraint(Sketcher.Constraint("Coincident", 30, 2, 31, 1))
sketch6.addConstraint(Sketcher.Constraint("Coincident", 31, 2, 32, 1))
sketch6.addConstraint(Sketcher.Constraint("Coincident", 32, 2, 29, 1))
sketch6.addConstraint(Sketcher.Constraint("Horizontal", 0))
sketch6.addConstraint(Sketcher.Constraint("Vertical", 2))
sketch6.addConstraint(Sketcher.Constraint("Horizontal", 3))
sketch6.addConstraint(Sketcher.Constraint("Vertical", 4))
sketch6.addConstraint(Sketcher.Constraint("Horizontal", 5))
sketch6.addConstraint(Sketcher.Constraint("Vertical", 6))
sketch6.addConstraint(Sketcher.Constraint("Horizontal", 8))
sketch6.addConstraint(Sketcher.Constraint("Vertical", 10))
sketch6.addConstraint(Sketcher.Constraint("Horizontal", 11))
sketch6.addConstraint(Sketcher.Constraint("Vertical", 12))
sketch6.addConstraint(Sketcher.Constraint("Horizontal", 14))
sketch6.addConstraint(Sketcher.Constraint("Vertical", 16))
sketch6.addConstraint(Sketcher.Constraint("Horizontal", 17))
sketch6.addConstraint(Sketcher.Constraint("Vertical", 19))
sketch6.addConstraint(Sketcher.Constraint("Horizontal", 21))
sketch6.addConstraint(Sketcher.Constraint("Vertical", 22))
sketch6.addConstraint(Sketcher.Constraint("Horizontal", 23))
sketch6.addConstraint(Sketcher.Constraint("Vertical", 24))
sketch6.addConstraint(Sketcher.Constraint("Horizontal", 25))
sketch6.addConstraint(Sketcher.Constraint("Vertical", 26))
sketch6.addConstraint(Sketcher.Constraint("Horizontal", 27))
sketch6.addConstraint(Sketcher.Constraint("Vertical", 28))
sketch6.addConstraint(Sketcher.Constraint("Horizontal", 29))
sketch6.addConstraint(Sketcher.Constraint("Vertical", 30))
sketch6.addConstraint(Sketcher.Constraint("Horizontal", 31))
sketch6.addConstraint(Sketcher.Constraint("Vertical", 32))
sketch6.addConstraint(Sketcher.Constraint("Equal", 1, 7))
sketch6.addConstraint(Sketcher.Constraint("Equal", 9, 13))
sketch6.addConstraint(Sketcher.Constraint("Equal", 13, 15))
sketch6.addConstraint(Sketcher.Constraint("Equal", 15, 18))
sketch6.addConstraint(Sketcher.Constraint("Equal", 7, 20))
sketch6.addConstraint(Sketcher.Constraint("Horizontal", 9, 3, 13, 3))
sketch6.addConstraint(Sketcher.Constraint("Vertical", 1, 3, 7, 3))
sketch6.addConstraint(Sketcher.Constraint("Vertical", 10, 2, 25, 2))
sketch6.addConstraint(Sketcher.Constraint("Vertical", 12, 2, 27, 2))
sketch6.addConstraint(Sketcher.Constraint("Equal", 27, 29))
sketch6.addConstraint(Sketcher.Constraint("Equal", 8, 10))
sketch6.addConstraint(Sketcher.Constraint("Diameter", 33, 14.0))
sketch6.addConstraint(Sketcher.Constraint("Radius", 1, 5.0))
sketch6.addConstraint(Sketcher.Constraint("Radius", 9, 3.0))
sketch6.addConstraint(Sketcher.Constraint("Diameter", 34, 2.5))
sketch6.addConstraint(Sketcher.Constraint("DistanceX", 21, 2, 21, 1, 2.0))
sketch6.addConstraint(Sketcher.Constraint("DistanceY", 16, 1, 16, 2, 1.0))
sketch6.addConstraint(Sketcher.Constraint("DistanceY", 30, 1, 30, 2, 13.0))
sketch6.addConstraint(Sketcher.Constraint("DistanceX", 0, 2, 0, 1, 35.4))
sketch6.addConstraint(Sketcher.Constraint("DistanceX", 8, 1, 8, 2, 2.2))
sketch6.addConstraint(Sketcher.Constraint("DistanceX", 11, 1, 11, 2, 4.5))
sketch6.addConstraint(Sketcher.Constraint("DistanceX", 14, 1, 14, 2, 10.8))
sketch6.addConstraint(Sketcher.Constraint("DistanceY", 22, 1, 22, 2, 7.5))
sketch6.addConstraint(Sketcher.Constraint("DistanceY", 26, 1, 26, 2, 5.2))
sketch6.addConstraint(Sketcher.Constraint("DistanceX", 15, 3, 33, 3, 5.0))
sketch6.addConstraint(Sketcher.Constraint("DistanceX", 7, 3, 21, 2, 1.0))
sketch6.addConstraint(Sketcher.Constraint("DistanceY", 24, 2, 26, 2, 5.0))
sketch6.addConstraint(Sketcher.Constraint("DistanceY", 27, 2, 30, 2, 2.0))
sketch6.addConstraint(Sketcher.Constraint("DistanceX", 23, 2, 30, 2, 9.0))
sketch6.addConstraint(Sketcher.Constraint("DistanceY", 33, 3, 20, 3, 8.4))
sketch6.addConstraint(Sketcher.Constraint("DistanceX", 20, 3, 34, 3, 1.5))
sketch6.addConstraint(Sketcher.Constraint("DistanceY", 20, 3, 34, 3, 0.7))
sketch6.addConstraint(Sketcher.Constraint("DistanceY", 22, 2, 1, 3, 6.5))
sketch6.addConstraint(Sketcher.Constraint("DistanceX", 3, 1, 3, 2, 0.963999))
sketch6.addConstraint(Sketcher.Constraint("DistanceY", 19, 1, 19, 2, 18.744848))
sketch6.addConstraint(Sketcher.Constraint("DistanceY", 2, 2, 2, 1, 2.376627))
sketch6.addConstraint(Sketcher.Constraint("DistanceY", 4, 2, 4, 1, 16.046747))
sketch6.addConstraint(Sketcher.Constraint("DistanceY", 4, 2, -1, 1, 56.707221))
sketch6.addConstraint(Sketcher.Constraint("DistanceX", -1, 1, 1, 3, 42.729313))
sketch6.setExpression("Constraints[70]", "Params.sketch6_diameter")
sketch6.setExpression("Constraints[71]", "Params.sketch6_radius")
sketch6.setExpression("Constraints[72]", "Params.sketch6_radius2")
sketch6.setExpression("Constraints[73]", "Params.sketch6_diameter2")
sketch6.setExpression("Constraints[74]", "Params.sketch6_width")
pocket4 = body.newObject("PartDesign::Pocket", "Pocket003")
pocket4.Profile = sketch6
pocket4.setExpression("Length", "Params.pocket4_length")

doc.recompute()
